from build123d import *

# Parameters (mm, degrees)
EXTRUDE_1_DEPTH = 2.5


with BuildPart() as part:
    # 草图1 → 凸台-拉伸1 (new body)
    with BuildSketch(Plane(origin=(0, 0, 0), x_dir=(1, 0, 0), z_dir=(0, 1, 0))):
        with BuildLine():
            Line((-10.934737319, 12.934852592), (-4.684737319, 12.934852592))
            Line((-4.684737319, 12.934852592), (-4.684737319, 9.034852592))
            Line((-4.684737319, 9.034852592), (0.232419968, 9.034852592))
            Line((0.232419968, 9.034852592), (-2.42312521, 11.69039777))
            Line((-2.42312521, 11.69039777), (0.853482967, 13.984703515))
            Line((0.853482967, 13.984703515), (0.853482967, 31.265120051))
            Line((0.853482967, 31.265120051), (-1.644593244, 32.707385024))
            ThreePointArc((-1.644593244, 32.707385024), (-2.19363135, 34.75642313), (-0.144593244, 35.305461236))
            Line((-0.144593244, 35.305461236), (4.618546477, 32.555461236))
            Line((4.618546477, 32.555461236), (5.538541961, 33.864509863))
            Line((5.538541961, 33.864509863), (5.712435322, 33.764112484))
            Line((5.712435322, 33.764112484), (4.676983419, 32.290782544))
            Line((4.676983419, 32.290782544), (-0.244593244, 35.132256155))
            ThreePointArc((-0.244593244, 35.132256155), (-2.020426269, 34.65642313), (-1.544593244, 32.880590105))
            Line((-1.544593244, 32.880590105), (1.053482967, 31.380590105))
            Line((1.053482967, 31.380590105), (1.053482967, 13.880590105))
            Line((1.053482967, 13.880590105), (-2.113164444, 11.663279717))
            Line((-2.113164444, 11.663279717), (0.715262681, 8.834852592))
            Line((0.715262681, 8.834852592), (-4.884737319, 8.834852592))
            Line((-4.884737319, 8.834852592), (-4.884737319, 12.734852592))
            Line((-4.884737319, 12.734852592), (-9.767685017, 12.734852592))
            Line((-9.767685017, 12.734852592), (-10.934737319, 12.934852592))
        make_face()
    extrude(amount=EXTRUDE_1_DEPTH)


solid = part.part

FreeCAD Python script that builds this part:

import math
import FreeCAD as App
import Part
import Sketcher
Q = App.Units.Quantity

doc = App.newDocument("Part")
body = doc.addObject("PartDesign::Body", "Body")

sketch1 = body.newObject("Sketcher::SketchObject", "Sketch")
sketch1.AttachmentSupport = (doc.getObject("XZ_Plane"), [""])
sketch1.MapMode = "FlatFace"
sketch1.addGeometry([
    Part.LineSegment(App.Vector(-4.68, -12.93, 0), App.Vector(-10.93, -12.93, 0)),
    Part.LineSegment(App.Vector(-10.93, -12.93, 0), App.Vector(-9.77, -12.73, 0)),
    Part.LineSegment(App.Vector(-9.77, -12.73, 0), App.Vector(-4.88, -12.73, 0)),
    Part.LineSegment(App.Vector(-4.88, -12.73, 0), App.Vector(-4.88, -8.83, 0)),
    Part.LineSegment(App.Vector(-4.88, -8.83, 0), App.Vector(0.72, -8.83, 0)),
    Part.LineSegment(App.Vector(0.72, -8.83, 0), App.Vector(-2.11, -11.66, 0)),
    Part.LineSegment(App.Vector(-2.11, -11.66, 0), App.Vector(1.05, -13.88, 0)),
    Part.LineSegment(App.Vector(1.05, -13.88, 0), App.Vector(1.05, -31.38, 0)),
    Part.LineSegment(App.Vector(1.05, -31.38, 0), App.Vector(-1.54, -32.88, 0)),
    Part.ArcOfCircle(Part.Circle(App.Vector(-0.89, -34.01, 0), App.Vector(0, 0, 1), 1.3), math.radians(120), math.radians(300)),
    Part.LineSegment(App.Vector(-0.24, -35.13, 0), App.Vector(4.68, -32.29, 0)),
    Part.LineSegment(App.Vector(4.68, -32.29, 0), App.Vector(5.71, -33.76, 0)),
    Part.LineSegment(App.Vector(5.71, -33.76, 0), App.Vector(5.54, -33.86, 0)),
    Part.LineSegment(App.Vector(5.54, -33.86, 0), App.Vector(4.62, -32.56, 0)),
    Part.LineSegment(App.Vector(4.62, -32.56, 0), App.Vector(-0.14, -35.31, 0)),
    Part.ArcOfCircle(Part.Circle(App.Vector(-0.89, -34.01, 0), App.Vector(0, 0, 1), 1.5), math.radians(120), math.radians(300)),
    Part.LineSegment(App.Vector(-1.64, -32.71, 0), App.Vector(0.85, -31.27, 0)),
    Part.LineSegment(App.Vector(0.85, -31.27, 0), App.Vector(0.85, -13.98, 0)),
    Part.LineSegment(App.Vector(0.85, -13.98, 0), App.Vector(-2.42, -11.69, 0)),
    Part.LineSegment(App.Vector(-2.42, -11.69, 0), App.Vector(0.23, -9.03, 0)),
    Part.LineSegment(App.Vector(0.23, -9.03, 0), App.Vector(-4.68, -9.03, 0)),
    Part.LineSegment(App.Vector(-4.68, -9.03, 0), App.Vector(-4.68, -12.93, 0)),
], False)
sketch1.addConstraint([
    Sketcher.Constraint("Coincident", 0, 2, 1, 1),
    Sketcher.Constraint("Coincident", 1, 2, 2, 1),
    Sketcher.Constraint("Coincident", 2, 2, 3, 1),
    Sketcher.Constraint("Coincident", 3, 2, 4, 1),
    Sketcher.Constraint("Coincident", 4, 2, 5, 1),
    Sketcher.Constraint("Coincident", 5, 2, 6, 1),
    Sketcher.Constraint("Coincident", 6, 2, 7, 1),
    Sketcher.Constraint("Coincident", 7, 2, 8, 1),
    Sketcher.Constraint("Tangent", 8, 2, 9, 1),
    Sketcher.Constraint("Tangent", 9, 2, 10, 1),
    Sketcher.Constraint("Coincident", 10, 2, 11, 1),
    Sketcher.Constraint("Coincident", 11, 2, 12, 1),
    Sketcher.Constraint("Coincident", 12, 2, 13, 1),
    Sketcher.Constraint("Coincident", 13, 2, 14, 1),
    Sketcher.Constraint("Tangent", 14, 2, 15, 2),
    Sketcher.Constraint("Tangent", 15, 1, 16, 1),
    Sketcher.Constraint("Coincident", 16, 2, 17, 1),
    Sketcher.Constraint("Coincident", 17, 2, 18, 1),
    Sketcher.Constraint("Coincident", 18, 2, 19, 1),
    Sketcher.Constraint("Coincident", 19, 2, 20, 1),
    Sketcher.Constraint("Coincident", 20, 2, 21, 1),
    Sketcher.Constraint("Coincident", 21, 2, 0, 1),
    Sketcher.Constraint("Horizontal", 0),
    Sketcher.Constraint("Horizontal", 2),
    Sketcher.Constraint("Vertical", 3),
    Sketcher.Constraint("Horizontal", 4),
    Sketcher.Constraint("Vertical", 7),
    Sketcher.Constraint("Vertical", 17),
    Sketcher.Constraint("Horizontal", 20),
    Sketcher.Constraint("Vertical", 21),
    Sketcher.Constraint("Coincident", 15, 3, 9, 3),
    Sketcher.Constraint("Parallel", 8, 10),
    Sketcher.Constraint("Parallel", 10, 12),
    Sketcher.Constraint("Parallel", 11, 13),
    Sketcher.Constraint("Parallel", 12, 14),
    Sketcher.Constraint("Parallel", 14, 16),
    Sketcher.Constraint("Parallel", 6, 18),
    Sketcher.Constraint("Parallel", 5, 19),
    Sketcher.Constraint("Equal", 3, 21),
    Sketcher.Constraint("Equal", 5, 18),
    Sketcher.Constraint("Radius", 9, 1.3),
    Sketcher.Constraint("Radius", 15, 1.5),
    Sketcher.Constraint("Angle", 5, Q("-135 deg")),
    Sketcher.Constraint("Angle", 6, Q("-35 deg")),
    Sketcher.Constraint("Angle", 8, Q("-150 deg")),
    Sketcher.Constraint("Distance", 5, 4.0),
    Sketcher.Constraint("Distance", 8, 3.0),
    Sketcher.Constraint("DistanceX", 4, 1, 4, 2, 5.6),
    Sketcher.Constraint("DistanceY", 3, 1, 3, 2, 3.9),
    Sketcher.Constraint("DistanceY", 7, 2, 7, 1, 17.5),
    Sketcher.Constraint("Distance", 13, 1.6),
    Sketcher.Constraint("Distance", 14, 5.5),
    Sketcher.Constraint("DistanceX", 0, 2, 0, 1, 6.25),
    Sketcher.Constraint("DistanceY", 0, 2, 1, 2, 0.2),
    Sketcher.Constraint("DistanceX", 16, 2, 7, 2, 0.2),
    Sketcher.Constraint("DistanceX", 3, 2, 20, 2, 0.2),
    Sketcher.Constraint("DistanceX", 7, 2, 10, 2, 3.6235),
    Sketcher.Constraint("Distance", 19, 3.755508),
    Sketcher.Constraint("DistanceX", 2, 1, 2, 2, 4.882948),
    Sketcher.Constraint("DistanceX", 20, 2, 20, 1, 4.917157),
    Sketcher.Constraint("DistanceY", 5, 2, -1, 1, 11.66328),
    Sketcher.Constraint("DistanceX", -1, 1, 12, 2, 5.538542),
    Sketcher.Constraint("DistanceY", 12, 2, -1, 1, 33.86451),
])
pad1 = body.newObject("PartDesign::Pad", "Pad")
pad1.Profile = sketch1
pad1.Length = 2.5
pad1.Reversed = True

doc.recompute()
